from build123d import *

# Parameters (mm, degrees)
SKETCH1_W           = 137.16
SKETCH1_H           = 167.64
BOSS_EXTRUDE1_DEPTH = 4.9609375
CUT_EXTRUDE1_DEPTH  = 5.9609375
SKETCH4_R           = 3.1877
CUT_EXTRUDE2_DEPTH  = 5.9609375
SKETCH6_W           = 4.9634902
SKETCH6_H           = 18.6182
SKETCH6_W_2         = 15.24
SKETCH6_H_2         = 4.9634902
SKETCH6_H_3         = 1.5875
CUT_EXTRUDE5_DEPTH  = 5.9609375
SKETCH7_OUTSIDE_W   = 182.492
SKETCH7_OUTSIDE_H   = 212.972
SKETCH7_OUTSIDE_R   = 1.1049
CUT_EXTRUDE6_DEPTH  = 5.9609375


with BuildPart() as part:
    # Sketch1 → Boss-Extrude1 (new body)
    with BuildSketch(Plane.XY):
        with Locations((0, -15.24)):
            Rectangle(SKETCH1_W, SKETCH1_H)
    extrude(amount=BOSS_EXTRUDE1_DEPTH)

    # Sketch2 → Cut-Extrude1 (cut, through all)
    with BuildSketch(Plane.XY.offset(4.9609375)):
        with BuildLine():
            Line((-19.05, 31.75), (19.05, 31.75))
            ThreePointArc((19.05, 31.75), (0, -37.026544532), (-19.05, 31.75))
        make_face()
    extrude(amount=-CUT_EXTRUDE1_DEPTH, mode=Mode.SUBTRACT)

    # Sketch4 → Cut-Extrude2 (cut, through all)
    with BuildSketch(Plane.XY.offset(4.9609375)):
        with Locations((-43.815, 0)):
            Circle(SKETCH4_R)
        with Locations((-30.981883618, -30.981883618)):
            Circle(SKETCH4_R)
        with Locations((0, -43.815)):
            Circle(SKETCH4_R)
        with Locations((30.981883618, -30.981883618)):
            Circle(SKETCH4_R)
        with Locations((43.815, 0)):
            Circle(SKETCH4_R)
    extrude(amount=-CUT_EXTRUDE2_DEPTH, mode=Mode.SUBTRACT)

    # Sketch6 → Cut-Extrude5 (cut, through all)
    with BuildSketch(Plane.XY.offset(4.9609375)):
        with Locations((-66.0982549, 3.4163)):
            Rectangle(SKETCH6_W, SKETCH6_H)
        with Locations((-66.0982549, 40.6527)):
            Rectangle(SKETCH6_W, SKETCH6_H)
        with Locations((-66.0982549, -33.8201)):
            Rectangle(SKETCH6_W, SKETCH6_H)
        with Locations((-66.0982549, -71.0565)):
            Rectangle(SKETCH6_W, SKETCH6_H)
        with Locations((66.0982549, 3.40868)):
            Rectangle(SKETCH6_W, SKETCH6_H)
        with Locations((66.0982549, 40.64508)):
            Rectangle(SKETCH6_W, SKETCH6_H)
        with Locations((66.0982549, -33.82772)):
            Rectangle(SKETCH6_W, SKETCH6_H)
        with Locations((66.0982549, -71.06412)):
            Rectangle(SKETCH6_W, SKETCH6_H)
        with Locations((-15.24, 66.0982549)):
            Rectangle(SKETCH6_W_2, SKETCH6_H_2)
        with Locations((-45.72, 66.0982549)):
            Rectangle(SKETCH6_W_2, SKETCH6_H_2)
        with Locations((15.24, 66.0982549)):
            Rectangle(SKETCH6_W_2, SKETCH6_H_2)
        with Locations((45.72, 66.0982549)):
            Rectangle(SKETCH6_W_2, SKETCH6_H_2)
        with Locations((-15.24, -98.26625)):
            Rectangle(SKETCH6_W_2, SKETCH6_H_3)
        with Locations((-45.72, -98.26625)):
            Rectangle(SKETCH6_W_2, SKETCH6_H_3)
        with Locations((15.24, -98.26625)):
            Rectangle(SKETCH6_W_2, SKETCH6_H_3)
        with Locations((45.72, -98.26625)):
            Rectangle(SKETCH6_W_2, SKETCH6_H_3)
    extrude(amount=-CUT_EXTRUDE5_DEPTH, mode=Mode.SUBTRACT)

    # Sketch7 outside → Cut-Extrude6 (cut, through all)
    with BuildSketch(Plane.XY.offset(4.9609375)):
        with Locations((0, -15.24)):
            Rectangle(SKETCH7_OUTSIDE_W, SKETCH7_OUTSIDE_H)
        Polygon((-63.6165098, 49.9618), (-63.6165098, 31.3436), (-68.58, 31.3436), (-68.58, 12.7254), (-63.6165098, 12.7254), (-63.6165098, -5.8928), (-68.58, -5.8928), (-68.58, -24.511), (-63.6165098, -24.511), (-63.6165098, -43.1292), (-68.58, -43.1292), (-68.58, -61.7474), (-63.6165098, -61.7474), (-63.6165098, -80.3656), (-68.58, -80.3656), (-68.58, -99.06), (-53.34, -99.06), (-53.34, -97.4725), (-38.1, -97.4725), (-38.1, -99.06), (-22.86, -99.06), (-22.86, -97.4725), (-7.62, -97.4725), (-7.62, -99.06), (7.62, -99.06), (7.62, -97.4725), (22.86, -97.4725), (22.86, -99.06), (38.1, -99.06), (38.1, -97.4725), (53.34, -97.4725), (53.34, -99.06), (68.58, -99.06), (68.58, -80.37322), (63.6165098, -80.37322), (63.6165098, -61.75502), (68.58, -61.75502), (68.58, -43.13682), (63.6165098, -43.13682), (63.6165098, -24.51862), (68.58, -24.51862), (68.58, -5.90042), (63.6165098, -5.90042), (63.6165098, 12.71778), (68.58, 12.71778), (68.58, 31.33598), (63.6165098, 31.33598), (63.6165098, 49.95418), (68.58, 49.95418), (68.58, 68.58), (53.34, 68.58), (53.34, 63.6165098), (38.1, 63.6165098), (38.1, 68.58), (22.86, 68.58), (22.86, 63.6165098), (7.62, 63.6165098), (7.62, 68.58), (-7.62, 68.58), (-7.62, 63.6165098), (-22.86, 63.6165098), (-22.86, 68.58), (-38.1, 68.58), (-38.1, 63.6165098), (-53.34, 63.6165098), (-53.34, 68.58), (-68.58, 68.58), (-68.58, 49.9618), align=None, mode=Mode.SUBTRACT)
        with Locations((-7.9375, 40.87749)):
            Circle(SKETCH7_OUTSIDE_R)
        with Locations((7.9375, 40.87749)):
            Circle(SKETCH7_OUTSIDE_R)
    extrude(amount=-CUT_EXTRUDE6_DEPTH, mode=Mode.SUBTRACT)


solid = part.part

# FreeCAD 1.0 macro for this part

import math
import FreeCAD as App
import Part
import Sketcher

V = App.Vector
Q = App.Units.Quantity


def add_polygon(sketch, points):
    """Adds a closed chain of lines whose ends are joined by coincident constraints."""
    first, n = sketch.GeometryCount, len(points)
    for a, b in zip(points, points[1:] + points[:1]):
        sketch.addGeometry(Part.LineSegment(App.Vector(*a, 0), App.Vector(*b, 0)), False)
    for i in range(n):
        sketch.addConstraint(Sketcher.Constraint("Coincident", first + i, 2, first + (i + 1) % n, 1))

doc = App.newDocument("Part")
body = doc.addObject("PartDesign::Body", "Body")

sketch1 = body.newObject("Sketcher::SketchObject", "Sketch")
sketch1.AttachmentSupport = (doc.getObject("XY_Plane"), [""])
sketch1.MapMode = "FlatFace"
add_polygon(sketch1, [(-69, 69), (-69, -99), (69, -99), (69, 69)])
sketch1.addConstraint([
    Sketcher.Constraint("Vertical", 0),
    Sketcher.Constraint("Horizontal", 1),
    Sketcher.Constraint("Vertical", 2),
    Sketcher.Constraint("Horizontal", 3),
    Sketcher.Constraint("DistanceX", 1, 1, 1, 2, Q("5.4 in")),
    Sketcher.Constraint("DistanceY", 0, 2, 0, 1, Q("6.6 in")),
    Sketcher.Constraint("DistanceX", 0, 2, -1, 1, Q("2.7 in")),
    Sketcher.Constraint("DistanceY", 0, 2, -1, 1, Q("3.9 in")),
])
pad1 = body.newObject("PartDesign::Pad", "Pad")
pad1.Profile = sketch1
pad1.Length = 4.960938

sketch2 = body.newObject("Sketcher::SketchObject", "Sketch001")
sketch2.AttachmentSupport = (doc.getObject("XY_Plane"), [""])
sketch2.MapMode = "FlatFace"
sketch2.AttachmentOffset = App.Placement(V(0, 0, 4.960938), App.Rotation())
sketch2.addGeometry([
    Part.LineSegment(V(19, 32, 0), V(-19, 32, 0)),
    Part.ArcOfCircle(Part.Circle(V(0, 0, 0), V(0, 0, 1), 37), math.radians(121), math.radians(419)),
], False)
sketch2.addConstraint([
    Sketcher.Constraint("Coincident", 0, 1, 1, 2),
    Sketcher.Constraint("Coincident", 1, 1, 0, 2),
    Sketcher.Constraint("Horizontal", 0),
    Sketcher.Constraint("Coincident", 1, 3, -1, 1),
    Sketcher.Constraint("DistanceX", 0, 2, 0, 1, Q("1.5 in")),
    Sketcher.Constraint("DistanceY", -1, 1, 0, 1, Q("1.25 in")),
])
pocket1 = body.newObject("PartDesign::Pocket", "Pocket")
pocket1.Profile = sketch2
pocket1.Type = "ThroughAll"

sketch3 = body.newObject("Sketcher::SketchObject", "Sketch002")
sketch3.AttachmentSupport = (doc.getObject("XY_Plane"), [""])
sketch3.MapMode = "FlatFace"
sketch3.AttachmentOffset = App.Placement(V(0, 0, 4.960938), App.Rotation())
sketch3.addGeometry([
    Part.Circle(V(-43.8, 0, 0), V(0, 0, 1), 3.2),
    Part.Circle(V(-31, -31, 0), V(0, 0, 1), 3.2),
    Part.Circle(V(0, -43.8, 0), V(0, 0, 1), 3.2),
    Part.Circle(V(31, -31, 0), V(0, 0, 1), 3.2),
    Part.Circle(V(43.8, 0, 0), V(0, 0, 1), 3.2),
], False)
sketch3.addConstraint([
    Sketcher.Constraint("Equal", 0, 1),
    Sketcher.Constraint("Equal", 1, 2),
    Sketcher.Constraint("Equal", 2, 3),
    Sketcher.Constraint("Equal", 3, 4),
    Sketcher.Constraint("Symmetric", 0, 3, 4, 3, -1, 1),
    Sketcher.Constraint("Symmetric", 1, 3, 3, 3, -2),
    Sketcher.Constraint("PointOnObject", 0, 3, -1),
    Sketcher.Constraint("PointOnObject", 2, 3, -2),
    Sketcher.Constraint("Diameter", 0, Q("0.251 in")),
    Sketcher.Constraint("DistanceX", 0, 3, 4, 3, Q("3.45 in")),
    Sketcher.Constraint("DistanceY", 2, 3, -1, 1, Q("1.725 in")),
    Sketcher.Constraint("DistanceX", 1, 3, -1, 1, 30.981884),
    Sketcher.Constraint("DistanceY", 1, 3, -1, 1, 30.981884),
])
pocket2 = body.newObject("PartDesign::Pocket", "Pocket001")
pocket2.Profile = sketch3
pocket2.Type = "ThroughAll"

sketch4 = body.newObject("Sketcher::SketchObject", "Sketch003")
sketch4.AttachmentSupport = (doc.getObject("XY_Plane"), [""])
sketch4.MapMode = "FlatFace"
sketch4.AttachmentOffset = App.Placement(V(0, 0, 4.960938), App.Rotation())
add_polygon(sketch4, [(-68.6, 12.7), (-68.6, -5.9), (-63.6, -5.9), (-63.6, 12.7)])
add_polygon(sketch4, [(-68.6, 50), (-68.6, 31.3), (-63.6, 31.3), (-63.6, 50)])
add_polygon(sketch4, [(-68.6, -24.5), (-68.6, -43.1), (-63.6, -43.1), (-63.6, -24.5)])
add_polygon(sketch4, [(-68.6, -61.7), (-68.6, -80.4), (-63.6, -80.4), (-63.6, -61.7)])
add_polygon(sketch4, [(63.6, 12.7), (63.6, -5.9), (68.6, -5.9), (68.6, 12.7)])
add_polygon(sketch4, [(63.6, 50), (63.6, 31.3), (68.6, 31.3), (68.6, 50)])
add_polygon(sketch4, [(63.6, -24.5), (63.6, -43.1), (68.6, -43.1), (68.6, -24.5)])
add_polygon(sketch4, [(63.6, -61.8), (63.6, -80.4), (68.6, -80.4), (68.6, -61.8)])
add_polygon(sketch4, [(-22.9, 68.6), (-22.9, 63.6), (-7.6, 63.6), (-7.6, 68.6)])
add_polygon(sketch4, [(-53.3, 68.6), (-53.3, 63.6), (-38.1, 63.6), (-38.1, 68.6)])
add_polygon(sketch4, [(7.6, 68.6), (7.6, 63.6), (22.9, 63.6), (22.9, 68.6)])
add_polygon(sketch4, [(38.1, 68.6), (38.1, 63.6), (53.3, 63.6), (53.3, 68.6)])
add_polygon(sketch4, [(-22.9, -97.5), (-22.9, -99.1), (-7.6, -99.1), (-7.6, -97.5)])
add_polygon(sketch4, [(-53.3, -97.5), (-53.3, -99.1), (-38.1, -99.1), (-38.1, -97.5)])
add_polygon(sketch4, [(7.6, -97.5), (7.6, -99.1), (22.9, -99.1), (22.9, -97.5)])
add_polygon(sketch4, [(38.1, -97.5), (38.1, -99.1), (53.3, -99.1), (53.3, -97.5)])
sketch4.addConstraint([
    Sketcher.Constraint("Vertical", 0),
    Sketcher.Constraint("Horizontal", 1),
    Sketcher.Constraint("Vertical", 2),
    Sketcher.Constraint("Horizontal", 3),
    Sketcher.Constraint("Vertical", 4),
    Sketcher.Constraint("Horizontal", 5),
    Sketcher.Constraint("Vertical", 6),
    Sketcher.Constraint("Horizontal", 7),
    Sketcher.Constraint("Vertical", 8),
    Sketcher.Constraint("Horizontal", 9),
    Sketcher.Constraint("Vertical", 10),
    Sketcher.Constraint("Horizontal", 11),
    Sketcher.Constraint("Vertical", 12),
    Sketcher.Constraint("Horizontal", 13),
    Sketcher.Constraint("Vertical", 14),
    Sketcher.Constraint("Horizontal", 15),
    Sketcher.Constraint("Vertical", 16),
    Sketcher.Constraint("Horizontal", 17),
    Sketcher.Constraint("Vertical", 18),
    Sketcher.Constraint("Horizontal", 19),
    Sketcher.Constraint("Vertical", 20),
    Sketcher.Constraint("Horizontal", 21),
    Sketcher.Constraint("Vertical", 22),
    Sketcher.Constraint("Horizontal", 23),
    Sketcher.Constraint("Vertical", 24),
    Sketcher.Constraint("Horizontal", 25),
    Sketcher.Constraint("Vertical", 26),
    Sketcher.Constraint("Horizontal", 27),
    Sketcher.Constraint("Vertical", 28),
    Sketcher.Constraint("Horizontal", 29),
    Sketcher.Constraint("Vertical", 30),
    Sketcher.Constraint("Horizontal", 31),
    Sketcher.Constraint("Vertical", 32),
    Sketcher.Constraint("Horizontal", 33),
    Sketcher.Constraint("Vertical", 34),
    Sketcher.Constraint("Horizontal", 35),
    Sketcher.Constraint("Vertical", 36),
    Sketcher.Constraint("Horizontal", 37),
    Sketcher.Constraint("Vertical", 38),
    Sketcher.Constraint("Horizontal", 39),
    Sketcher.Constraint("Vertical", 40),
    Sketcher.Constraint("Horizontal", 41),
    Sketcher.Constraint("Vertical", 42),
    Sketcher.Constraint("Horizontal", 43),
    Sketcher.Constraint("Vertical", 44),
    Sketcher.Constraint("Horizontal", 45),
    Sketcher.Constraint("Vertical", 46),
    Sketcher.Constraint("Horizontal", 47),
    Sketcher.Constraint("Vertical", 48),
    Sketcher.Constraint("Horizontal", 49),
    Sketcher.Constraint("Vertical", 50),
    Sketcher.Constraint("Horizontal", 51),
    Sketcher.Constraint("Vertical", 52),
    Sketcher.Constraint("Horizontal", 53),
    Sketcher.Constraint("Vertical", 54),
    Sketcher.Constraint("Horizontal", 55),
    Sketcher.Constraint("Vertical", 56),
    Sketcher.Constraint("Horizontal", 57),
    Sketcher.Constraint("Vertical", 58),
    Sketcher.Constraint("Horizontal", 59),
    Sketcher.Constraint("Vertical", 60),
    Sketcher.Constraint("Horizontal", 61),
    Sketcher.Constraint("Vertical", 62),
    Sketcher.Constraint("Horizontal", 63),
    Sketcher.Constraint("Symmetric", 33, 2, 40, 2, -2),
    Sketcher.Constraint("Symmetric", 35, 2, 42, 2, -2),
    Sketcher.Constraint("Symmetric", 37, 2, 44, 2, -2),
    Sketcher.Constraint("Symmetric", 39, 2, 46, 2, -2),
    Sketcher.Constraint("Symmetric", 49, 2, 56, 2, -2),
    Sketcher.Constraint("Symmetric", 51, 2, 58, 2, -2),
    Sketcher.Constraint("Symmetric", 53, 2, 60, 2, -2),
    Sketcher.Constraint("Symmetric", 55, 2, 62, 2, -2),
    Sketcher.Constraint("Horizontal", 33, 2, 36, 2),
    Sketcher.Constraint("Horizontal", 35, 2, 38, 2),
    Sketcher.Constraint("Horizontal", 49, 2, 52, 2),
    Sketcher.Constraint("Horizontal", 51, 2, 54, 2),
    Sketcher.Constraint("Vertical", 3, 2, 4, 2),
    Sketcher.Constraint("Vertical", 2, 2, 5, 2),
    Sketcher.Constraint("Vertical", 7, 2, 8, 2),
    Sketcher.Constraint("Vertical", 6, 2, 9, 2),
    Sketcher.Constraint("Vertical", 11, 2, 12, 2),
    Sketcher.Constraint("Vertical", 10, 2, 13, 2),
    Sketcher.Constraint("Vertical", 19, 2, 20, 2),
    Sketcher.Constraint("Vertical", 18, 2, 21, 2),
    Sketcher.Constraint("Vertical", 23, 2, 24, 2),
    Sketcher.Constraint("Vertical", 22, 2, 25, 2),
    Sketcher.Constraint("Vertical", 27, 2, 28, 2),
    Sketcher.Constraint("Vertical", 26, 2, 29, 2),
    Sketcher.Constraint("Vertical", 35, 2, 48, 2),
    Sketcher.Constraint("Vertical", 34, 2, 49, 2),
    Sketcher.Constraint("Vertical", 39, 2, 52, 2),
    Sketcher.Constraint("Vertical", 38, 2, 53, 2),
    Sketcher.Constraint("Equal", 15, 17),
    Sketcher.Constraint("Equal", 35, 37),
    Sketcher.Constraint("Equal", 2, 4),
    Sketcher.Constraint("Equal", 6, 8),
    Sketcher.Constraint("Equal", 10, 12),
    Sketcher.Constraint("Equal", 14, 16),
    Sketcher.Constraint("Equal", 18, 20),
    Sketcher.Constraint("Equal", 22, 24),
    Sketcher.Constraint("Equal", 26, 28),
    Sketcher.Constraint("Equal", 31, 32),
    Sketcher.Constraint("DistanceX", 33, 1, 33, 2, Q("0.6 in")),
    Sketcher.Constraint("DistanceX", 0, 2, -1, 1, Q("2.7 in")),
    Sketcher.Constraint("DistanceX", -1, 1, 17, 2, Q("2.7 in")),
    Sketcher.Constraint("DistanceX", 32, 2, -1, 1, Q("0.9 in")),
    Sketcher.Constraint("DistanceY", -1, 1, 34, 2, Q("2.7 in")),
    Sketcher.Constraint("DistanceX", 36, 2, -1, 1, Q("2.1 in")),
    Sketcher.Constraint("DistanceY", 48, 2, -1, 1, Q("3.9 in")),
    Sketcher.Constraint("DistanceY", 0, 2, 0, 1, Q("0.733 in")),
    Sketcher.Constraint("DistanceY", 48, 2, 48, 1, Q("0.0625 in")),
    Sketcher.Constraint("DistanceY", 0, 2, -1, 1, Q("0.232 in")),
    Sketcher.Constraint("DistanceY", -1, 1, 4, 2, Q("1.234 in")),
    Sketcher.Constraint("DistanceY", 8, 2, -1, 1, Q("1.698 in")),
    Sketcher.Constraint("DistanceY", 12, 2, -1, 1, Q("3.164 in")),
    Sketcher.Constraint("DistanceY", 16, 2, -1, 1, Q("0.2323 in")),
    Sketcher.Constraint("DistanceY", -1, 1, 20, 2, Q("1.2337 in")),
    Sketcher.Constraint("DistanceY", 24, 2, -1, 1, Q("1.6983 in")),
    Sketcher.Constraint("DistanceY", 28, 2, -1, 1, Q("3.1643 in")),
    Sketcher.Constraint("DistanceX", 1, 1, 1, 2, 4.96349),
])
pocket3 = body.newObject("PartDesign::Pocket", "Pocket002")
pocket3.Profile = sketch4
pocket3.Type = "ThroughAll"

sketch5 = body.newObject("Sketcher::SketchObject", "Sketch004")
sketch5.AttachmentSupport = (doc.getObject("XY_Plane"), [""])
sketch5.MapMode = "FlatFace"
sketch5.AttachmentOffset = App.Placement(V(0, 0, 4.960938), App.Rotation())
add_polygon(sketch5, [(-91.2, 91.2), (-91.2, -121.7), (91.2, -121.7), (91.2, 91.2)])
add_polygon(sketch5, [(-63.6, 31.3), (-63.6, 50), (-68.6, 50), (-68.6, 68.6), (-53.3, 68.6), (-53.3, 63.6), (-38.1, 63.6), (-38.1, 68.6), (-22.9, 68.6), (-22.9, 63.6), (-7.6, 63.6), (-7.6, 68.6), (7.6, 68.6), (7.6, 63.6), (22.9, 63.6), (22.9, 68.6), (38.1, 68.6), (38.1, 63.6), (53.3, 63.6), (53.3, 68.6), (68.6, 68.6), (68.6, 50), (63.6, 50), (63.6, 31.3), (68.6, 31.3), (68.6, 12.7), (63.6, 12.7), (63.6, -5.9), (68.6, -5.9), (68.6, -24.5), (63.6, -24.5), (63.6, -43.1), (68.6, -43.1), (68.6, -61.8), (63.6, -61.8), (63.6, -80.4), (68.6, -80.4), (68.6, -99.1), (53.3, -99.1), (53.3, -97.5), (38.1, -97.5), (38.1, -99.1), (22.9, -99.1), (22.9, -97.5), (7.6, -97.5), (7.6, -99.1), (-7.6, -99.1), (-7.6, -97.5), (-22.9, -97.5), (-22.9, -99.1), (-38.1, -99.1), (-38.1, -97.5), (-53.3, -97.5), (-53.3, -99.1), (-68.6, -99.1), (-68.6, -80.4), (-63.6, -80.4), (-63.6, -61.7), (-68.6, -61.7), (-68.6, -43.1), (-63.6, -43.1), (-63.6, -24.5), (-68.6, -24.5), (-68.6, -5.9), (-63.6, -5.9), (-63.6, 12.7), (-68.6, 12.7), (-68.6, 31.3)])
sketch5.addGeometry(Part.Circle(V(-7.9, 40.9, 0), V(0, 0, 1), 1.1), False)
sketch5.addGeometry(Part.Circle(V(7.9, 40.9, 0), V(0, 0, 1), 1.1), False)
sketch5.addConstraint([
    Sketcher.Constraint("Vertical", 0),
    Sketcher.Constraint("Horizontal", 1),
    Sketcher.Constraint("Vertical", 2),
    Sketcher.Constraint("Horizontal", 3),
    Sketcher.Constraint("Vertical", 4),
    Sketcher.Constraint("Horizontal", 5),
    Sketcher.Constraint("Vertical", 6),
    Sketcher.Constraint("Horizontal", 7),
    Sketcher.Constraint("Vertical", 8),
    Sketcher.Constraint("Horizontal", 9),
    Sketcher.Constraint("Vertical", 10),
    Sketcher.Constraint("Horizontal", 11),
    Sketcher.Constraint("Vertical", 12),
    Sketcher.Constraint("Horizontal", 13),
    Sketcher.Constraint("Vertical", 14),
    Sketcher.Constraint("Horizontal", 15),
    Sketcher.Constraint("Vertical", 16),
    Sketcher.Constraint("Horizontal", 17),
    Sketcher.Constraint("Vertical", 18),
    Sketcher.Constraint("Horizontal", 19),
    Sketcher.Constraint("Vertical", 20),
    Sketcher.Constraint("Horizontal", 21),
    Sketcher.Constraint("Vertical", 22),
    Sketcher.Constraint("Horizontal", 23),
    Sketcher.Constraint("Vertical", 24),
    Sketcher.Constraint("Horizontal", 25),
    Sketcher.Constraint("Vertical", 26),
    Sketcher.Constraint("Horizontal", 27),
    Sketcher.Constraint("Vertical", 28),
    Sketcher.Constraint("Horizontal", 29),
    Sketcher.Constraint("Vertical", 30),
    Sketcher.Constraint("Horizontal", 31),
    Sketcher.Constraint("Vertical", 32),
    Sketcher.Constraint("Horizontal", 33),
    Sketcher.Constraint("Vertical", 34),
    Sketcher.Constraint("Horizontal", 35),
    Sketcher.Constraint("Vertical", 36),
    Sketcher.Constraint("Horizontal", 37),
    Sketcher.Constraint("Vertical", 38),
    Sketcher.Constraint("Horizontal", 39),
    Sketcher.Constraint("Vertical", 40),
    Sketcher.Constraint("Horizontal", 41),
    Sketcher.Constraint("Vertical", 42),
    Sketcher.Constraint("Horizontal", 43),
    Sketcher.Constraint("Vertical", 44),
    Sketcher.Constraint("Horizontal", 45),
    Sketcher.Constraint("Vertical", 46),
    Sketcher.Constraint("Horizontal", 47),
    Sketcher.Constraint("Vertical", 48),
    Sketcher.Constraint("Horizontal", 49),
    Sketcher.Constraint("Vertical", 50),
    Sketcher.Constraint("Horizontal", 51),
    Sketcher.Constraint("Vertical", 52),
    Sketcher.Constraint("Horizontal", 53),
    Sketcher.Constraint("Vertical", 54),
    Sketcher.Constraint("Horizontal", 55),
    Sketcher.Constraint("Vertical", 56),
    Sketcher.Constraint("Horizontal", 57),
    Sketcher.Constraint("Vertical", 58),
    Sketcher.Constraint("Horizontal", 59),
    Sketcher.Constraint("Vertical", 60),
    Sketcher.Constraint("Horizontal", 61),
    Sketcher.Constraint("Vertical", 62),
    Sketcher.Constraint("Horizontal", 63),
    Sketcher.Constraint("Vertical", 64),
    Sketcher.Constraint("Horizontal", 65),
    Sketcher.Constraint("Vertical", 66),
    Sketcher.Constraint("Horizontal", 67),
    Sketcher.Constraint("Vertical", 68),
    Sketcher.Constraint("Horizontal", 69),
    Sketcher.Constraint("Vertical", 70),
    Sketcher.Constraint("Horizontal", 71),
    Sketcher.Constraint("Equal", 72, 73),
    Sketcher.Constraint("Symmetric", 72, 3, 73, 3, -2),
    Sketcher.Constraint("Symmetric", 13, 2, 16, 2, -2),
    Sketcher.Constraint("Symmetric", 11, 2, 18, 2, -2),
    Sketcher.Constraint("Symmetric", 9, 2, 20, 2, -2),
    Sketcher.Constraint("Symmetric", 7, 2, 22, 2, -2),
    Sketcher.Constraint("Symmetric", 47, 2, 50, 2, -2),
    Sketcher.Constraint("Symmetric", 45, 2, 52, 2, -2),
    Sketcher.Constraint("Symmetric", 43, 2, 54, 2, -2),
    Sketcher.Constraint("Symmetric", 41, 2, 56, 2, -2),
    Sketcher.Constraint("Horizontal", 7, 2, 10, 2),
    Sketcher.Constraint("Horizontal", 9, 2, 12, 2),
    Sketcher.Constraint("Horizontal", 11, 2, 14, 2),
    Sketcher.Constraint("Horizontal", 41, 2, 44, 2),
    Sketcher.Constraint("Horizontal", 43, 2, 46, 2),
    Sketcher.Constraint("Horizontal", 45, 2, 48, 2),
    Sketcher.Constraint("Vertical", 24, 2, 27, 2),
    Sketcher.Constraint("Vertical", 26, 2, 29, 2),
    Sketcher.Constraint("Vertical", 28, 2, 31, 2),
    Sketcher.Constraint("Vertical", 30, 2, 33, 2),
    Sketcher.Constraint("Vertical", 32, 2, 35, 2),
    Sketcher.Constraint("Vertical", 34, 2, 37, 2),
    Sketcher.Constraint("Vertical", 36, 2, 39, 2),
    Sketcher.Constraint("Vertical", 22, 2, 41, 2),
    Sketcher.Constraint("Vertical", 20, 2, 43, 2),
    Sketcher.Constraint("Vertical", 18, 2, 45, 2),
    Sketcher.Constraint("Vertical", 16, 2, 47, 2),
    Sketcher.Constraint("Vertical", 6, 2, 57, 2),
    Sketcher.Constraint("Vertical", 4, 2, 59, 2),
    Sketcher.Constraint("Vertical", 58, 2, 61, 2),
    Sketcher.Constraint("Vertical", 60, 2, 63, 2),
    Sketcher.Constraint("Vertical", 62, 2, 65, 2),
    Sketcher.Constraint("Vertical", 64, 2, 67, 2),
    Sketcher.Constraint("Vertical", 66, 2, 69, 2),
    Sketcher.Constraint("Equal", 7, 9),
    Sketcher.Constraint("Equal", 9, 11),
    Sketcher.Constraint("Equal", 11, 13),
    Sketcher.Constraint("Equal", 13, 15),
    Sketcher.Constraint("Equal", 21, 23),
    Sketcher.Constraint("Equal", 5, 25),
    Sketcher.Constraint("Equal", 4, 6),
    Sketcher.Constraint("Equal", 71, 8),
    Sketcher.Constraint("Equal", 6, 26),
    Sketcher.Constraint("Equal", 26, 28),
    Sketcher.Constraint("Equal", 28, 30),
    Sketcher.Constraint("Equal", 30, 32),
    Sketcher.Constraint("Equal", 32, 34),
    Sketcher.Constraint("Equal", 34, 36),
    Sketcher.Constraint("Equal", 36, 38),
    Sketcher.Constraint("Equal", 38, 60),
    Sketcher.Constraint("Equal", 60, 62),
    Sketcher.Constraint("Equal", 62, 64),
    Sketcher.Constraint("Equal", 64, 66),
    Sketcher.Constraint("Equal", 66, 68),
    Sketcher.Constraint("Equal", 68, 70),
    Sketcher.Constraint("Diameter", 72, Q("0.087 in")),
    Sketcher.Constraint("DistanceX", 7, 1, 7, 2, Q("0.6 in")),
    Sketcher.Constraint("DistanceY", -1, 1, 6, 2, Q("2.7 in")),
    Sketcher.Constraint("DistanceY", 40, 2, -1, 1, Q("3.9 in")),
    Sketcher.Constraint("DistanceY", 4, 1, 4, 2, Q("0.733 in")),
    Sketcher.Constraint("DistanceY", 42, 1, 42, 2, Q("0.0625 in")),
    Sketcher.Constraint("DistanceY", 24, 2, 24, 1, Q("0.7333 in")),
    Sketcher.Constraint("DistanceX", 72, 3, -1, 1, Q("0.3125 in")),
    Sketcher.Constraint("DistanceX", 1, 1, 1, 2, 182.492),
    Sketcher.Constraint("DistanceY", 0, 2, 0, 1, 212.972),
    Sketcher.Constraint("DistanceX", 5, 2, 5, 1, 4.96349),
    Sketcher.Constraint("DistanceX", 0, 2, -1, 1, 91.246),
    Sketcher.Constraint("DistanceY", 0, 2, -1, 1, 121.726),
    Sketcher.Constraint("DistanceY", -1, 1, 72, 3, 40.87749),
])
pocket4 = body.newObject("PartDesign::Pocket", "Pocket003")
pocket4.Profile = sketch5
pocket4.Type = "ThroughAll"

doc.recompute()
